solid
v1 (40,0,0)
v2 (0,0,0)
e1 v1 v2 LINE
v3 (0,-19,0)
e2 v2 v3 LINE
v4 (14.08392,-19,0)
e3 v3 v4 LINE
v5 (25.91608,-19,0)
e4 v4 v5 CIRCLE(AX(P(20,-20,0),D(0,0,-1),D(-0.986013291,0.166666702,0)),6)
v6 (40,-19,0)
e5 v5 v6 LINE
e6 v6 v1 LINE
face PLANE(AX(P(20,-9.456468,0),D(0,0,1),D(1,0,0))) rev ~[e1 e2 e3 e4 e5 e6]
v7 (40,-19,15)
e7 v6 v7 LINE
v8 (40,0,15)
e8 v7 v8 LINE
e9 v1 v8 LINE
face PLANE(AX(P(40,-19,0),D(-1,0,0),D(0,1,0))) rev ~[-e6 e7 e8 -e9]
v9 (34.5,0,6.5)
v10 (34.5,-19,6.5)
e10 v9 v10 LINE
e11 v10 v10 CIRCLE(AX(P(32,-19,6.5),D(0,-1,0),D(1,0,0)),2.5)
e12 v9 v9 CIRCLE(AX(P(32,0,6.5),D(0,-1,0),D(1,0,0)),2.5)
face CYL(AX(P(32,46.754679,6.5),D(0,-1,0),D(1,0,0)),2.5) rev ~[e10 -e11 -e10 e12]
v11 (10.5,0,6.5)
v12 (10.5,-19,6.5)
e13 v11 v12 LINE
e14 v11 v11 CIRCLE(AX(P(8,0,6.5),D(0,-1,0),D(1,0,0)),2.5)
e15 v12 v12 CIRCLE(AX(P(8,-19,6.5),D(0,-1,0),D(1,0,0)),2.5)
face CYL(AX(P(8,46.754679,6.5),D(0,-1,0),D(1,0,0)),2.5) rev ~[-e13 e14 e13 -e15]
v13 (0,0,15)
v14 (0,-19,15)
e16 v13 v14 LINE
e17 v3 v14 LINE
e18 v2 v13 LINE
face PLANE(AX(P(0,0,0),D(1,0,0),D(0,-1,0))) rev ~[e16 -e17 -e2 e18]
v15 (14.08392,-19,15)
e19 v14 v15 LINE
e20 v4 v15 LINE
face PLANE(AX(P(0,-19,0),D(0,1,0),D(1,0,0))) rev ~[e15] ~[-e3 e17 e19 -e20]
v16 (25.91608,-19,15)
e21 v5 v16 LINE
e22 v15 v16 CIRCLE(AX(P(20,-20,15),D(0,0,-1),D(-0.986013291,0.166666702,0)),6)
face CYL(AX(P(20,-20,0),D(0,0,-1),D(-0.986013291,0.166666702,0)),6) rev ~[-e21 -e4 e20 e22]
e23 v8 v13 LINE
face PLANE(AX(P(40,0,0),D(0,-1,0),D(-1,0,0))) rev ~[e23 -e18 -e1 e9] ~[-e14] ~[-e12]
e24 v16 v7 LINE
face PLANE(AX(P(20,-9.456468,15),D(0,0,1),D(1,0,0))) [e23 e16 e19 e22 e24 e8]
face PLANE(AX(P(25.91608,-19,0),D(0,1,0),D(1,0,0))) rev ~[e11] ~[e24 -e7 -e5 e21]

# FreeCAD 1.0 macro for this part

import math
import FreeCAD as App
import Part
import Sketcher

V = App.Vector

doc = App.newDocument("Part")
body = doc.addObject("PartDesign::Body", "Body")

# Sketch on XY plane
sketch1 = doc.addObject("Sketcher::SketchObject", "Sketch")
body.addObject(sketch1)
sketch1.AttachmentSupport = (doc.XY_Plane, [""])
sketch1.MapMode = "FlatFace"
sketch1.addGeometry([
    Part.LineSegment(V(40, 0, 0), V(0, 0, 0)),  # 0
    Part.LineSegment(V(0, 0, 0), V(0, -19, 0)),  # 1
    Part.LineSegment(V(0, -19, 0), V(14, -19, 0)),  # 2
    Part.ArcOfCircle(Part.Circle(V(20, -20, 0), V(0, 0, 1), 6), math.radians(10), math.radians(170)),  # 3
    Part.LineSegment(V(26, -19, 0), V(40, -19, 0)),  # 4
    Part.LineSegment(V(40, -19, 0), V(40, 0, 0)),  # 5
], False)
sketch1.addConstraint([
    Sketcher.Constraint("Coincident", 0, 2, 1, 1),
    Sketcher.Constraint("Coincident", 1, 2, 2, 1),
    Sketcher.Constraint("Coincident", 2, 2, 3, 2),
    Sketcher.Constraint("Coincident", 3, 1, 4, 1),
    Sketcher.Constraint("Coincident", 4, 2, 5, 1),
    Sketcher.Constraint("Coincident", 5, 2, 0, 1),
    Sketcher.Constraint("Horizontal", 0),
    Sketcher.Constraint("Vertical", 1),
    Sketcher.Constraint("Horizontal", 2),
    Sketcher.Constraint("Horizontal", 4),
    Sketcher.Constraint("Vertical", 5),
    Sketcher.Constraint("Coincident", 0, 2, -1, 1),
    Sketcher.Constraint("Horizontal", 2, 2, 3, 1),
    Sketcher.Constraint("Equal", 2, 4),
    Sketcher.Constraint("Radius", 3, 6.0),
    Sketcher.Constraint("DistanceX", 0, 2, 0, 1, 40.0),
    Sketcher.Constraint("DistanceY", 1, 2, 1, 1, 19.0),
    Sketcher.Constraint("DistanceY", 3, 3, -1, 1, 20.0),
])
pad1 = doc.addObject("PartDesign::Pad", "Pad")
body.addObject(pad1)
pad1.Profile = sketch1
pad1.Length = 15

# Sketch on XZ plane
sketch2 = doc.addObject("Sketcher::SketchObject", "Sketch001")
body.addObject(sketch2)
sketch2.AttachmentSupport = (doc.XZ_Plane, [""])
sketch2.MapMode = "FlatFace"
sketch2.addGeometry([
    Part.Circle(V(8, 6.5, 0), V(0, 0, 1), 2.5),
    Part.Circle(V(32, 6.5, 0), V(0, 0, 1), 2.5),
], False)
sketch2.addConstraint([
    Sketcher.Constraint("Equal", 0, 1),
    Sketcher.Constraint("Horizontal", 0, 3, 1, 3),
    Sketcher.Constraint("Diameter", 0, 5.0),
    Sketcher.Constraint("DistanceX", -1, 1, 0, 3, 8.0),
    Sketcher.Constraint("DistanceX", -1, 1, 1, 3, 32.0),
    Sketcher.Constraint("DistanceY", -1, 1, 0, 3, 6.5),
])
doc.recompute()
hole = doc.addObject("PartDesign::Hole", "Hole")
body.addObject(hole)
hole.Profile = sketch2
hole.ThreadType = "None"
hole.Diameter = 5
hole.DepthType = "ThroughAll"
hole.Reversed = True

doc.recompute()
